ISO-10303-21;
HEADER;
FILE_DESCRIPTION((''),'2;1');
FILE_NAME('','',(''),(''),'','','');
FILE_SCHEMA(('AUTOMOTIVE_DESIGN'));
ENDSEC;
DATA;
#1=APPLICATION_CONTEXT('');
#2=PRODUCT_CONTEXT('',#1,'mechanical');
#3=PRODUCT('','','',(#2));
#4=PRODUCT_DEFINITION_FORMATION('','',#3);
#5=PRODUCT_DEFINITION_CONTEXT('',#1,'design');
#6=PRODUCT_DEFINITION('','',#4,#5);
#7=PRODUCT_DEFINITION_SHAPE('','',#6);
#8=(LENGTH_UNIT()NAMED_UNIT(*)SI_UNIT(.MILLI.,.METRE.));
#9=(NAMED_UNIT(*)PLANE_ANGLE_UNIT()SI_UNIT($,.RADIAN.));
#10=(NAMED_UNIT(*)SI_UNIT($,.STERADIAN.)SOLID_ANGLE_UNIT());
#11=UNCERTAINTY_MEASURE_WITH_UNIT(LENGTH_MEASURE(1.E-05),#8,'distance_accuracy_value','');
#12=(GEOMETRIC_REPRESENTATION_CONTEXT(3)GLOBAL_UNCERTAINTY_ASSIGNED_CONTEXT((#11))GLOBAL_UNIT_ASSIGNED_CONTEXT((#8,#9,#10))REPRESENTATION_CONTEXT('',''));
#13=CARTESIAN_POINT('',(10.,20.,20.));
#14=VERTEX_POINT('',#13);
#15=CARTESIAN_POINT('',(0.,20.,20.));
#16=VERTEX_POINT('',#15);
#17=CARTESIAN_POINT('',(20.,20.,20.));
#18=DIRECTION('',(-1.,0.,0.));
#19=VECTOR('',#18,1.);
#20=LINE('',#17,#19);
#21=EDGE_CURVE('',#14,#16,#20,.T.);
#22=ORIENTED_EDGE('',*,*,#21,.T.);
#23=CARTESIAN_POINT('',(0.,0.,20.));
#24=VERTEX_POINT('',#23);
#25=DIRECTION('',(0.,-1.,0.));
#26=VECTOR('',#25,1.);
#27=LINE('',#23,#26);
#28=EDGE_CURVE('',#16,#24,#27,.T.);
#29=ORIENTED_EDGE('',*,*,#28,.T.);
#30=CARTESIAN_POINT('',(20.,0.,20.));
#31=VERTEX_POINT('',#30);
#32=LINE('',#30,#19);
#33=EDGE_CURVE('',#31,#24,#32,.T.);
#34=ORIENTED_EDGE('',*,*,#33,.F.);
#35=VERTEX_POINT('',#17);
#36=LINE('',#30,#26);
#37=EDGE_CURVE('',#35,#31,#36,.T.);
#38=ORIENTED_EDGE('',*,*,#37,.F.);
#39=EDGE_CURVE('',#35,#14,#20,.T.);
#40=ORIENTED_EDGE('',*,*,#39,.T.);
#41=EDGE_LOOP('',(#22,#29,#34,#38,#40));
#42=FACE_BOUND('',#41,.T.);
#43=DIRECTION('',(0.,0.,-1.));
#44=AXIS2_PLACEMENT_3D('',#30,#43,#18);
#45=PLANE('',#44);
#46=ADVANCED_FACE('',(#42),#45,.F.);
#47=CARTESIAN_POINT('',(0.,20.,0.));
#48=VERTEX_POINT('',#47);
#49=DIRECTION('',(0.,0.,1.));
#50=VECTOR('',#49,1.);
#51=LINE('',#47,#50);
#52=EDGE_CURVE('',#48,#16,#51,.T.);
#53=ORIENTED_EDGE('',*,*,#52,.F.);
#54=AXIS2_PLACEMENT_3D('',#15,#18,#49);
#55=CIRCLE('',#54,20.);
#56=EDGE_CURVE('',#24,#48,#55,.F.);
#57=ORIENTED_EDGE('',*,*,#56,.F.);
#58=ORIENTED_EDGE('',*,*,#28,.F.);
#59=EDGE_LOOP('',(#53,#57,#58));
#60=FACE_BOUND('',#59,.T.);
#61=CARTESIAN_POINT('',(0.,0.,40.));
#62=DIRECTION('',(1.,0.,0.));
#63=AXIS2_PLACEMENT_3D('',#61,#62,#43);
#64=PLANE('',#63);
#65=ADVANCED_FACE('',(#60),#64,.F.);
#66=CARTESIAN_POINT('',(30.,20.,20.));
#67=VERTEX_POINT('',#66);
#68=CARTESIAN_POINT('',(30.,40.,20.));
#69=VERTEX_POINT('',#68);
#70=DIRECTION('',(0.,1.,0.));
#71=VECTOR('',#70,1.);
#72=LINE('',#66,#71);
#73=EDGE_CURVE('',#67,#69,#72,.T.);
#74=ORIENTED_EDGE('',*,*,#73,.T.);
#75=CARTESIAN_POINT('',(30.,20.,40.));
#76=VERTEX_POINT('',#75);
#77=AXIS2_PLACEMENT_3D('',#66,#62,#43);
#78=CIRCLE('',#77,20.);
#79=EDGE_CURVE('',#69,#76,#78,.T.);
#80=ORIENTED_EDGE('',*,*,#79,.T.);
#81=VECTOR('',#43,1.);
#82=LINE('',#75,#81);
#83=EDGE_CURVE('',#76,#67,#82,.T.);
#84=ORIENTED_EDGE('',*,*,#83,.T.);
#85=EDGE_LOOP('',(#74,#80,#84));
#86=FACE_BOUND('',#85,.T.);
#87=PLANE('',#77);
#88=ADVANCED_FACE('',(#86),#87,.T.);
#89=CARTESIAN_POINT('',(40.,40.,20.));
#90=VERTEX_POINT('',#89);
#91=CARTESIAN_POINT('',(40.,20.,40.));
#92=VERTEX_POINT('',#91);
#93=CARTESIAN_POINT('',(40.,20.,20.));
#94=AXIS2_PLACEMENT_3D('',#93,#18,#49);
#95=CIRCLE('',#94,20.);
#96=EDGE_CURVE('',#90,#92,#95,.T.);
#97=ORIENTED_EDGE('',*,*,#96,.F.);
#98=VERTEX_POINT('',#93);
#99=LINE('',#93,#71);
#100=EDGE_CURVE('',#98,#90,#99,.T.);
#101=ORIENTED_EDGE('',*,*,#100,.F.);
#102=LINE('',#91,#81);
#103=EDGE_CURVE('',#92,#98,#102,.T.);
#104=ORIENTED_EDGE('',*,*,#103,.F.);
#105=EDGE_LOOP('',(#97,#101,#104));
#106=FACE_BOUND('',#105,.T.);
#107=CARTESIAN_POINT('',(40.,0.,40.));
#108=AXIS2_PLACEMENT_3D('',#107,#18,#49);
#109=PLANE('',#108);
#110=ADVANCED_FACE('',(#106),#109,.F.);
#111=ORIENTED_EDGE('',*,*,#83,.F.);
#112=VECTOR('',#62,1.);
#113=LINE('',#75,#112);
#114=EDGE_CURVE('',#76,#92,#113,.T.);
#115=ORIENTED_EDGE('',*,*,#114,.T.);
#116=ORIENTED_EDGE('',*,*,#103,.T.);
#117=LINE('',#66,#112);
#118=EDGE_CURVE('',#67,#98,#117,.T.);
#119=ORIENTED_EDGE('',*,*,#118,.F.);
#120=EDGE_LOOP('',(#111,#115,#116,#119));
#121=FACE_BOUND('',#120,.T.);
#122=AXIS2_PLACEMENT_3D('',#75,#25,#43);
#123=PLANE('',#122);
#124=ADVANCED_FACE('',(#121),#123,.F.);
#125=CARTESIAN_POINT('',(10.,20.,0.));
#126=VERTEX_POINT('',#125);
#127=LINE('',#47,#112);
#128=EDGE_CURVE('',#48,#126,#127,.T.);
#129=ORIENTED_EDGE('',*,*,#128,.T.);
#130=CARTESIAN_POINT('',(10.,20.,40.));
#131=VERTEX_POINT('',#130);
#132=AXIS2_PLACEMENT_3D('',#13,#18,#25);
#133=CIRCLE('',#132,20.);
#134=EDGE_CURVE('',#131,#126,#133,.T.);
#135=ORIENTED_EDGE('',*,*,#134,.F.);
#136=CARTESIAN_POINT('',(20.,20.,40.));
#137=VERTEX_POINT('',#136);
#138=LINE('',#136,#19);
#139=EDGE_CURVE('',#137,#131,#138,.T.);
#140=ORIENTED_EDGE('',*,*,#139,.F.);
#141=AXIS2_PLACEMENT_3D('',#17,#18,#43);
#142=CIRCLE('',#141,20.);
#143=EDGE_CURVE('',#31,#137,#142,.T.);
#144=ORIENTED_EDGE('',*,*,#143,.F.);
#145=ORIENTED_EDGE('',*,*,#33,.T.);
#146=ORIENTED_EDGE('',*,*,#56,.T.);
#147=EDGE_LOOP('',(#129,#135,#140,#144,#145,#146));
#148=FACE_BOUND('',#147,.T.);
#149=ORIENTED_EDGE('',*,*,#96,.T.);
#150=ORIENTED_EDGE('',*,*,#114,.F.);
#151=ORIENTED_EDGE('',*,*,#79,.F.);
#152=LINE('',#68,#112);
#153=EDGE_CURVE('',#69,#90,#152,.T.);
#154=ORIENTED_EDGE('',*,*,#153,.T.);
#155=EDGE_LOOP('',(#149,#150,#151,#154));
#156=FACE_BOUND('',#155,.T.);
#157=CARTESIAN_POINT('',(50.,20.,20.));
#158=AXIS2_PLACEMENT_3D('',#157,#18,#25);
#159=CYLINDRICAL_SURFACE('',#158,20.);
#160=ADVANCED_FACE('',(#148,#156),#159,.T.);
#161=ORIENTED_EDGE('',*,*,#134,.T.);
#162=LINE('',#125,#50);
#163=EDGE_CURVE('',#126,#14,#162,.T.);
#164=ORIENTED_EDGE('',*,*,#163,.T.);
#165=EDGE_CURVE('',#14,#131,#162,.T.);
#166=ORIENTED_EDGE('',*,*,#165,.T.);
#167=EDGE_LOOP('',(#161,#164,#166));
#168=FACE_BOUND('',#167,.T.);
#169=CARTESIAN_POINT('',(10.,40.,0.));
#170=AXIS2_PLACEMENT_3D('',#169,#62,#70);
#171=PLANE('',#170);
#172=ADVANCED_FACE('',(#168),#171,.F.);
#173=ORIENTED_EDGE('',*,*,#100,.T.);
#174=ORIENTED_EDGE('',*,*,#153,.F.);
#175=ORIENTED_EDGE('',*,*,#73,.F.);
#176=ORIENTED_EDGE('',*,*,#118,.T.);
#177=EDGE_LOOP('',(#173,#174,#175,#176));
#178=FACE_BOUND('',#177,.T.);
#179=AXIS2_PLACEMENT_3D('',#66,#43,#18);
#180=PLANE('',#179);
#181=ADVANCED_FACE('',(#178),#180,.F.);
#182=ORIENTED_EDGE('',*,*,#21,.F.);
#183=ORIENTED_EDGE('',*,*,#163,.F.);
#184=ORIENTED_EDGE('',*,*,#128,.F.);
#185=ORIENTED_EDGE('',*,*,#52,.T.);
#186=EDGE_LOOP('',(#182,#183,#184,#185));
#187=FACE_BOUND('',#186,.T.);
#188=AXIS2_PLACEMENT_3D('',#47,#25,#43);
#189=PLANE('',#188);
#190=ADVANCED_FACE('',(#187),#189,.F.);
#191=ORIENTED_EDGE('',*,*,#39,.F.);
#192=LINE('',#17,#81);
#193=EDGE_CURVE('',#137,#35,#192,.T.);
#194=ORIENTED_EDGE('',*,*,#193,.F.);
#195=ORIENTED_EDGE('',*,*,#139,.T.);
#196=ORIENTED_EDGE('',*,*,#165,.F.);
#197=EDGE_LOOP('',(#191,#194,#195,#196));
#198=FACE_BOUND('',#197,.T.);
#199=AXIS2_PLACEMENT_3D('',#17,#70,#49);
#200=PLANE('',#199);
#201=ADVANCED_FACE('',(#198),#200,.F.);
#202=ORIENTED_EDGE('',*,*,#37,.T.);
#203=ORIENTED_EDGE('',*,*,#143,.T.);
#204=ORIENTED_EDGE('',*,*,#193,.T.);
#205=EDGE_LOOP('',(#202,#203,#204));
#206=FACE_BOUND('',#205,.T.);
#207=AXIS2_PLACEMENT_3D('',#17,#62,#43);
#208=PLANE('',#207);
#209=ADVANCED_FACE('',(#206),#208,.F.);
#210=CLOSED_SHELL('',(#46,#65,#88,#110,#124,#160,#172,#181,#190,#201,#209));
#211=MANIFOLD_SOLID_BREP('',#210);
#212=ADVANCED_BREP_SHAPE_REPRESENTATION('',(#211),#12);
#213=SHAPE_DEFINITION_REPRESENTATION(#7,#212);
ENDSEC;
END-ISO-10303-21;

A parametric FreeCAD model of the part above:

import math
import FreeCAD as App
import Part
import Sketcher

V = App.Vector
Q = App.Units.Quantity

doc = App.newDocument("Part")
body = doc.addObject("PartDesign::Body", "Body")

# Sketch on XY plane
sketch1 = body.newObject("Sketcher::SketchObject", "Sketch")
sketch1.AttachmentSupport = (doc.getObject("XY_Plane"), [""])
sketch1.MapMode = "FlatFace"
sketch1.addGeometry([
    Part.LineSegment(V(0, 40, 0), V(0, 0, 0)),
    Part.LineSegment(V(0, 0, 0), V(40, 0, 0)),
    Part.LineSegment(V(40, 0, 0), V(40, 40, 0)),
    Part.LineSegment(V(40, 40, 0), V(0, 40, 0)),
], False)
sketch1.addConstraint([
    Sketcher.Constraint("Coincident", 0, 2, 1, 1),
    Sketcher.Constraint("Coincident", 1, 2, 2, 1),
    Sketcher.Constraint("Coincident", 2, 2, 3, 1),
    Sketcher.Constraint("Coincident", 3, 2, 0, 1),
    Sketcher.Constraint("Vertical", 0),
    Sketcher.Constraint("Horizontal", 1),
    Sketcher.Constraint("Vertical", 2),
    Sketcher.Constraint("Horizontal", 3),
    Sketcher.Constraint("Coincident", 0, 2, -1, 1),
    Sketcher.Constraint("Equal", 3, 0),
    Sketcher.Constraint("DistanceX", 1, 1, 1, 2, Q("40 mm")),
])
pad1 = body.newObject("PartDesign::Pad", "Pad")
pad1.Profile = sketch1
pad1.Length = 40

# Sketch on XY plane
sketch2 = body.newObject("Sketcher::SketchObject", "Sketch001")
sketch2.AttachmentSupport = (doc.getObject("XY_Plane"), [""])
sketch2.MapMode = "FlatFace"
sketch2.AttachmentOffset = App.Placement(V(0, 0, 40), App.Rotation())
sketch2.addGeometry([
    Part.LineSegment(V(0, 40, 0), V(0, 20, 0)),
    Part.LineSegment(V(0, 20, 0), V(10, 20, 0)),
    Part.LineSegment(V(10, 20, 0), V(10, 40, 0)),
    Part.LineSegment(V(10, 40, 0), V(0, 40, 0)),
], False)
sketch2.addConstraint([
    Sketcher.Constraint("Coincident", 0, 2, 1, 1),
    Sketcher.Constraint("Coincident", 1, 2, 2, 1),
    Sketcher.Constraint("Coincident", 2, 2, 3, 1),
    Sketcher.Constraint("Coincident", 3, 2, 0, 1),
    Sketcher.Constraint("Vertical", 0),
    Sketcher.Constraint("Horizontal", 1),
    Sketcher.Constraint("Vertical", 2),
    Sketcher.Constraint("Horizontal", 3),
    Sketcher.Constraint("PointOnObject", 0, 2, -2),
    Sketcher.Constraint("DistanceX", 1, 1, 1, 2, Q("10 mm")),
    Sketcher.Constraint("DistanceY", 0, 2, 0, 1, Q("20 mm")),
    Sketcher.Constraint("DistanceY", -1, 1, 0, 2, Q("20 mm")),
])
pocket1 = body.newObject("PartDesign::Pocket", "Pocket")
pocket1.Profile = sketch2
pocket1.Length = 40

# Sketch on YZ plane
sketch3 = body.newObject("Sketcher::SketchObject", "Sketch002")
sketch3.AttachmentSupport = (doc.getObject("YZ_Plane"), [""])
sketch3.MapMode = "FlatFace"
sketch3.AttachmentOffset = App.Placement(V(0, 0, 10), App.Rotation())
sketch3.addGeometry([
    Part.LineSegment(V(40, 40, 0), V(40, 20, 0)),  # 0
    Part.ArcOfCircle(Part.Circle(V(20, 20, 0), V(0, 0, 1), 20), math.radians(0), math.radians(90)),  # 1
    Part.LineSegment(V(20, 40, 0), V(40, 40, 0)),  # 2
    Part.LineSegment(V(40, 0, 0), V(20, 0, 0)),  # 3
    Part.ArcOfCircle(Part.Circle(V(20, 20, 0), V(0, 0, 1), 20), math.radians(-90), math.radians(0)),  # 4
    Part.LineSegment(V(40, 20, 0), V(40, 0, 0)),  # 5
], False)
sketch3.addConstraint([
    Sketcher.Constraint("Tangent", 0, 2, 1, 1),
    Sketcher.Constraint("Tangent", 1, 2, 2, 1),
    Sketcher.Constraint("Coincident", 2, 2, 0, 1),
    Sketcher.Constraint("Tangent", 3, 2, 4, 1),
    Sketcher.Constraint("Tangent", 4, 2, 5, 1),
    Sketcher.Constraint("Coincident", 5, 2, 3, 1),
    Sketcher.Constraint("Vertical", 0),
    Sketcher.Constraint("Horizontal", 2),
    Sketcher.Constraint("Horizontal", 3),
    Sketcher.Constraint("Vertical", 5),
    Sketcher.Constraint("Coincident", 4, 3, 1, 3),
    Sketcher.Constraint("Equal", 1, 4),
    Sketcher.Constraint("PointOnObject", 3, 2, -1),
    Sketcher.Constraint("Radius", 1, Q("20 mm")),
    Sketcher.Constraint("DistanceX", -1, 1, 1, 3, Q("20 mm")),
])
pocket2 = body.newObject("PartDesign::Pocket", "Pocket001")
pocket2.Profile = sketch3
pocket2.Length = 40
pocket2.Reversed = True

# Sketch on YZ plane
sketch4 = body.newObject("Sketcher::SketchObject", "Sketch003")
sketch4.AttachmentSupport = (doc.getObject("YZ_Plane"), [""])
sketch4.MapMode = "FlatFace"
sketch4.addGeometry([
    Part.ArcOfCircle(Part.Circle(V(20, 20, 0), V(0, 0, 1), 20), math.radians(180), math.radians(270)),  # 0
    Part.LineSegment(V(20, 0, 0), V(0, 0, 0)),  # 1
    Part.LineSegment(V(0, 0, 0), V(0, 20, 0)),  # 2
    Part.ArcOfCircle(Part.Circle(V(20, 20, 0), V(0, 0, 1), 20), math.radians(90), math.radians(180)),  # 3
    Part.LineSegment(V(0, 20, 0), V(0, 40, 0)),  # 4
    Part.LineSegment(V(0, 40, 0), V(20, 40, 0)),  # 5
], False)
sketch4.addConstraint([
    Sketcher.Constraint("Tangent", 0, 2, 1, 1),
    Sketcher.Constraint("Coincident", 1, 2, 2, 1),
    Sketcher.Constraint("Tangent", 2, 2, 0, 1),
    Sketcher.Constraint("Tangent", 3, 2, 4, 1),
    Sketcher.Constraint("Coincident", 4, 2, 5, 1),
    Sketcher.Constraint("Tangent", 5, 2, 3, 1),
    Sketcher.Constraint("Horizontal", 1),
    Sketcher.Constraint("Vertical", 2),
    Sketcher.Constraint("Vertical", 4),
    Sketcher.Constraint("Horizontal", 5),
    Sketcher.Constraint("Coincident", 1, 2, -1, 1),
    Sketcher.Constraint("Coincident", 3, 3, 0, 3),
    Sketcher.Constraint("Equal", 0, 3),
    Sketcher.Constraint("Radius", 0, Q("20 mm")),
])
pocket3 = body.newObject("PartDesign::Pocket", "Pocket002")
pocket3.Profile = sketch4
pocket3.Length = 40
pocket3.Reversed = True

# Sketch on YZ plane
sketch5 = body.newObject("Sketcher::SketchObject", "Sketch004")
sketch5.AttachmentSupport = (doc.getObject("YZ_Plane"), [""])
sketch5.MapMode = "FlatFace"
sketch5.AttachmentOffset = App.Placement(V(0, 0, 40), App.Rotation())
sketch5.addGeometry([
    Part.LineSegment(V(20, 40, 0), V(20, 20, 0)),
    Part.LineSegment(V(20, 20, 0), V(40, 20, 0)),
    Part.ArcOfCircle(Part.Circle(V(20, 20, 0), V(0, 0, 1), 20), math.radians(0), math.radians(90)),
], False)
sketch5.addConstraint([
    Sketcher.Constraint("Coincident", 0, 2, 1, 1),
    Sketcher.Constraint("Coincident", 1, 2, 2, 1),
    Sketcher.Constraint("Coincident", 2, 2, 0, 1),
    Sketcher.Constraint("Vertical", 0),
    Sketcher.Constraint("Horizontal", 1),
    Sketcher.Constraint("Coincident", 0, 2, 2, 3),
    Sketcher.Constraint("Radius", 2, Q("20 mm")),
    Sketcher.Constraint("DistanceX", -1, 1, 2, 3, Q("20 mm")),
    Sketcher.Constraint("DistanceY", -1, 1, 2, 3, Q("20 mm")),
])
pocket4 = body.newObject("PartDesign::Pocket", "Pocket003")
pocket4.Profile = sketch5
pocket4.Length = 10

# Sketch on YZ plane
sketch6 = body.newObject("Sketcher::SketchObject", "Sketch005")
sketch6.AttachmentSupport = (doc.getObject("YZ_Plane"), [""])
sketch6.MapMode = "FlatFace"
sketch6.addGeometry([
    Part.LineSegment(V(20, 20, 0), V(0, 20, 0)),
    Part.ArcOfCircle(Part.Circle(V(20, 20, 0), V(0, 0, 1), 20), math.radians(90), math.radians(180)),
    Part.LineSegment(V(20, 40, 0), V(20, 20, 0)),
], False)
sketch6.addConstraint([
    Sketcher.Constraint("Coincident", 0, 2, 1, 2),
    Sketcher.Constraint("Coincident", 1, 1, 2, 1),
    Sketcher.Constraint("Coincident", 2, 2, 0, 1),
    Sketcher.Constraint("Horizontal", 0),
    Sketcher.Constraint("Vertical", 2),
    Sketcher.Constraint("Coincident", 2, 2, 1, 3),
    Sketcher.Constraint("PointOnObject", 0, 2, -2),
    Sketcher.Constraint("Radius", 1, Q("20 mm")),
    Sketcher.Constraint("DistanceY", -1, 1, 1, 3, Q("20 mm")),
])
pocket5 = body.newObject("PartDesign::Pocket", "Pocket004")
pocket5.Profile = sketch6
pocket5.Length = 20
pocket5.Reversed = True

doc.recompute()
